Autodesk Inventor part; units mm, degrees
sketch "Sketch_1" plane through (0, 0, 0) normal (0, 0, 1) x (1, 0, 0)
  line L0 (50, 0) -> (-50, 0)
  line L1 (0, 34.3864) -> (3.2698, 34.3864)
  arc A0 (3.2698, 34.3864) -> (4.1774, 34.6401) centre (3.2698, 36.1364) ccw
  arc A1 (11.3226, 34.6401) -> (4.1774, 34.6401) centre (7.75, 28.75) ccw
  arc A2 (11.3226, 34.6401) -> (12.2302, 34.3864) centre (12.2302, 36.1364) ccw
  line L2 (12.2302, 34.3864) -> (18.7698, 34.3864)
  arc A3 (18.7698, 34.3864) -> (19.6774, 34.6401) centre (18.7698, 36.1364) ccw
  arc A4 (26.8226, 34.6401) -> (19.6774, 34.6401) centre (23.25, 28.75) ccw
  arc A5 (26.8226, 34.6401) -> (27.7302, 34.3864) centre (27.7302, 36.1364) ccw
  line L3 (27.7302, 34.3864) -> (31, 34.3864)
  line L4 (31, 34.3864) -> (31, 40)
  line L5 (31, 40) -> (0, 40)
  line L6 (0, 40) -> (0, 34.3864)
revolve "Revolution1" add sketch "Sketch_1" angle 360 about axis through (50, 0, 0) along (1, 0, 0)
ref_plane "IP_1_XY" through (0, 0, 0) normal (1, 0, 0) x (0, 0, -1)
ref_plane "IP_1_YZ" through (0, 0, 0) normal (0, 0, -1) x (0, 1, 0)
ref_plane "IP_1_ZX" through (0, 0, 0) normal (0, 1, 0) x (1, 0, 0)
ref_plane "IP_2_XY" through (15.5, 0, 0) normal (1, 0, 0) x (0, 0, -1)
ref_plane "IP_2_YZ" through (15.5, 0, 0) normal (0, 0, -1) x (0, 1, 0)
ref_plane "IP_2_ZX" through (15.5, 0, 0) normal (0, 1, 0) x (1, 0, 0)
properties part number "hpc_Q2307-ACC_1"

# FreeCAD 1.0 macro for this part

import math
import FreeCAD as App
import Part
import Sketcher
from FreeCAD import Vector

doc = App.newDocument("Part")
body = doc.addObject("PartDesign::Body", "Body")

# Sketch on XY plane
sketch1 = body.newObject("Sketcher::SketchObject", "Sketch")
sketch1.AttachmentSupport = (doc.getObject("XY_Plane"), [""])
sketch1.MapMode = "FlatFace"
sketch1.addGeometry([
    Part.LineSegment(Vector(0, 40, 0), Vector(0, 34.3864, 0)),  # 0
    Part.LineSegment(Vector(0, 34.3864, 0), Vector(3.2698, 34.3864, 0)),  # 1
    Part.ArcOfCircle(Part.Circle(Vector(3.2698, 36.1364, 0), Vector(0, 0, 1), 1.75), math.radians(-90), math.radians(-58.760556)),  # 2
    Part.ArcOfCircle(Part.Circle(Vector(7.75, 28.75, 0), Vector(0, 0, 1), 6.888886), math.radians(58.76138), math.radians(121.23862)),  # 3
    Part.ArcOfCircle(Part.Circle(Vector(12.2302, 36.1364, 0), Vector(0, 0, 1), 1.750043), math.radians(-121.239444), math.radians(-90)),  # 4
    Part.LineSegment(Vector(12.2302, 34.3864, 0), Vector(18.7698, 34.3864, 0)),  # 5
    Part.ArcOfCircle(Part.Circle(Vector(18.7698, 36.1364, 0), Vector(0, 0, 1), 1.75), math.radians(-90), math.radians(-58.760556)),  # 6
    Part.ArcOfCircle(Part.Circle(Vector(23.25, 28.75, 0), Vector(0, 0, 1), 6.888886), math.radians(58.76138), math.radians(121.23862)),  # 7
    Part.ArcOfCircle(Part.Circle(Vector(27.7302, 36.1364, 0), Vector(0, 0, 1), 1.750043), math.radians(-121.239444), math.radians(-90)),  # 8
    Part.LineSegment(Vector(27.7302, 34.3864, 0), Vector(31, 34.3864, 0)),  # 9
    Part.LineSegment(Vector(31, 34.3864, 0), Vector(31, 40, 0)),  # 10
    Part.LineSegment(Vector(31, 40, 0), Vector(0, 40, 0)),  # 11
], False)
sketch1.addConstraint([
    Sketcher.Constraint("Coincident", 0, 2, 1, 1),
    Sketcher.Constraint("Tangent", 1, 2, 2, 1),
    Sketcher.Constraint("Tangent", 2, 2, 3, 2),
    Sketcher.Constraint("Tangent", 3, 1, 4, 1),
    Sketcher.Constraint("Tangent", 4, 2, 5, 1),
    Sketcher.Constraint("Tangent", 5, 2, 6, 1),
    Sketcher.Constraint("Tangent", 6, 2, 7, 2),
    Sketcher.Constraint("Tangent", 7, 1, 8, 1),
    Sketcher.Constraint("Tangent", 8, 2, 9, 1),
    Sketcher.Constraint("Coincident", 9, 2, 10, 1),
    Sketcher.Constraint("Coincident", 10, 2, 11, 1),
    Sketcher.Constraint("Coincident", 11, 2, 0, 1),
    Sketcher.Constraint("Vertical", 0),
    Sketcher.Constraint("Horizontal", 1),
    Sketcher.Constraint("Horizontal", 5),
    Sketcher.Constraint("Horizontal", 9),
    Sketcher.Constraint("Vertical", 10),
    Sketcher.Constraint("Horizontal", 11),
    Sketcher.Constraint("Equal", 2, 4),
    Sketcher.Constraint("Equal", 4, 6),
    Sketcher.Constraint("Equal", 3, 7),
    Sketcher.Constraint("Equal", 6, 8),
    Sketcher.Constraint("PointOnObject", 0, 2, -2),
    Sketcher.Constraint("Horizontal", 2, 3, 4, 3),
    Sketcher.Constraint("Horizontal", 3, 3, 7, 3),
    Sketcher.Constraint("Horizontal", 6, 3, 8, 3),
    Sketcher.Constraint("Equal", 1, 9),
    Sketcher.Constraint("DistanceX", 11, 2, 11, 1, 31.0),
    Sketcher.Constraint("Radius", 2, 1.75),
    Sketcher.Constraint("DistanceY", -1, 1, 10, 2, 40.0),
    Sketcher.Constraint("Radius", 3, 6.889),
    Sketcher.Constraint("DistanceX", 2, 3, 6, 3, 15.5),
    Sketcher.Constraint("DistanceY", -1, 1, 3, 3, 28.75),
    Sketcher.Constraint("DistanceY", -1, 1, 3, 1, 34.64),
])
revolution = body.newObject("PartDesign::Revolution", "Revolution")
revolution.Profile = sketch1
revolution.ReferenceAxis = (sketch1, ["H_Axis"])
revolution.Angle = 360

doc.recompute()
